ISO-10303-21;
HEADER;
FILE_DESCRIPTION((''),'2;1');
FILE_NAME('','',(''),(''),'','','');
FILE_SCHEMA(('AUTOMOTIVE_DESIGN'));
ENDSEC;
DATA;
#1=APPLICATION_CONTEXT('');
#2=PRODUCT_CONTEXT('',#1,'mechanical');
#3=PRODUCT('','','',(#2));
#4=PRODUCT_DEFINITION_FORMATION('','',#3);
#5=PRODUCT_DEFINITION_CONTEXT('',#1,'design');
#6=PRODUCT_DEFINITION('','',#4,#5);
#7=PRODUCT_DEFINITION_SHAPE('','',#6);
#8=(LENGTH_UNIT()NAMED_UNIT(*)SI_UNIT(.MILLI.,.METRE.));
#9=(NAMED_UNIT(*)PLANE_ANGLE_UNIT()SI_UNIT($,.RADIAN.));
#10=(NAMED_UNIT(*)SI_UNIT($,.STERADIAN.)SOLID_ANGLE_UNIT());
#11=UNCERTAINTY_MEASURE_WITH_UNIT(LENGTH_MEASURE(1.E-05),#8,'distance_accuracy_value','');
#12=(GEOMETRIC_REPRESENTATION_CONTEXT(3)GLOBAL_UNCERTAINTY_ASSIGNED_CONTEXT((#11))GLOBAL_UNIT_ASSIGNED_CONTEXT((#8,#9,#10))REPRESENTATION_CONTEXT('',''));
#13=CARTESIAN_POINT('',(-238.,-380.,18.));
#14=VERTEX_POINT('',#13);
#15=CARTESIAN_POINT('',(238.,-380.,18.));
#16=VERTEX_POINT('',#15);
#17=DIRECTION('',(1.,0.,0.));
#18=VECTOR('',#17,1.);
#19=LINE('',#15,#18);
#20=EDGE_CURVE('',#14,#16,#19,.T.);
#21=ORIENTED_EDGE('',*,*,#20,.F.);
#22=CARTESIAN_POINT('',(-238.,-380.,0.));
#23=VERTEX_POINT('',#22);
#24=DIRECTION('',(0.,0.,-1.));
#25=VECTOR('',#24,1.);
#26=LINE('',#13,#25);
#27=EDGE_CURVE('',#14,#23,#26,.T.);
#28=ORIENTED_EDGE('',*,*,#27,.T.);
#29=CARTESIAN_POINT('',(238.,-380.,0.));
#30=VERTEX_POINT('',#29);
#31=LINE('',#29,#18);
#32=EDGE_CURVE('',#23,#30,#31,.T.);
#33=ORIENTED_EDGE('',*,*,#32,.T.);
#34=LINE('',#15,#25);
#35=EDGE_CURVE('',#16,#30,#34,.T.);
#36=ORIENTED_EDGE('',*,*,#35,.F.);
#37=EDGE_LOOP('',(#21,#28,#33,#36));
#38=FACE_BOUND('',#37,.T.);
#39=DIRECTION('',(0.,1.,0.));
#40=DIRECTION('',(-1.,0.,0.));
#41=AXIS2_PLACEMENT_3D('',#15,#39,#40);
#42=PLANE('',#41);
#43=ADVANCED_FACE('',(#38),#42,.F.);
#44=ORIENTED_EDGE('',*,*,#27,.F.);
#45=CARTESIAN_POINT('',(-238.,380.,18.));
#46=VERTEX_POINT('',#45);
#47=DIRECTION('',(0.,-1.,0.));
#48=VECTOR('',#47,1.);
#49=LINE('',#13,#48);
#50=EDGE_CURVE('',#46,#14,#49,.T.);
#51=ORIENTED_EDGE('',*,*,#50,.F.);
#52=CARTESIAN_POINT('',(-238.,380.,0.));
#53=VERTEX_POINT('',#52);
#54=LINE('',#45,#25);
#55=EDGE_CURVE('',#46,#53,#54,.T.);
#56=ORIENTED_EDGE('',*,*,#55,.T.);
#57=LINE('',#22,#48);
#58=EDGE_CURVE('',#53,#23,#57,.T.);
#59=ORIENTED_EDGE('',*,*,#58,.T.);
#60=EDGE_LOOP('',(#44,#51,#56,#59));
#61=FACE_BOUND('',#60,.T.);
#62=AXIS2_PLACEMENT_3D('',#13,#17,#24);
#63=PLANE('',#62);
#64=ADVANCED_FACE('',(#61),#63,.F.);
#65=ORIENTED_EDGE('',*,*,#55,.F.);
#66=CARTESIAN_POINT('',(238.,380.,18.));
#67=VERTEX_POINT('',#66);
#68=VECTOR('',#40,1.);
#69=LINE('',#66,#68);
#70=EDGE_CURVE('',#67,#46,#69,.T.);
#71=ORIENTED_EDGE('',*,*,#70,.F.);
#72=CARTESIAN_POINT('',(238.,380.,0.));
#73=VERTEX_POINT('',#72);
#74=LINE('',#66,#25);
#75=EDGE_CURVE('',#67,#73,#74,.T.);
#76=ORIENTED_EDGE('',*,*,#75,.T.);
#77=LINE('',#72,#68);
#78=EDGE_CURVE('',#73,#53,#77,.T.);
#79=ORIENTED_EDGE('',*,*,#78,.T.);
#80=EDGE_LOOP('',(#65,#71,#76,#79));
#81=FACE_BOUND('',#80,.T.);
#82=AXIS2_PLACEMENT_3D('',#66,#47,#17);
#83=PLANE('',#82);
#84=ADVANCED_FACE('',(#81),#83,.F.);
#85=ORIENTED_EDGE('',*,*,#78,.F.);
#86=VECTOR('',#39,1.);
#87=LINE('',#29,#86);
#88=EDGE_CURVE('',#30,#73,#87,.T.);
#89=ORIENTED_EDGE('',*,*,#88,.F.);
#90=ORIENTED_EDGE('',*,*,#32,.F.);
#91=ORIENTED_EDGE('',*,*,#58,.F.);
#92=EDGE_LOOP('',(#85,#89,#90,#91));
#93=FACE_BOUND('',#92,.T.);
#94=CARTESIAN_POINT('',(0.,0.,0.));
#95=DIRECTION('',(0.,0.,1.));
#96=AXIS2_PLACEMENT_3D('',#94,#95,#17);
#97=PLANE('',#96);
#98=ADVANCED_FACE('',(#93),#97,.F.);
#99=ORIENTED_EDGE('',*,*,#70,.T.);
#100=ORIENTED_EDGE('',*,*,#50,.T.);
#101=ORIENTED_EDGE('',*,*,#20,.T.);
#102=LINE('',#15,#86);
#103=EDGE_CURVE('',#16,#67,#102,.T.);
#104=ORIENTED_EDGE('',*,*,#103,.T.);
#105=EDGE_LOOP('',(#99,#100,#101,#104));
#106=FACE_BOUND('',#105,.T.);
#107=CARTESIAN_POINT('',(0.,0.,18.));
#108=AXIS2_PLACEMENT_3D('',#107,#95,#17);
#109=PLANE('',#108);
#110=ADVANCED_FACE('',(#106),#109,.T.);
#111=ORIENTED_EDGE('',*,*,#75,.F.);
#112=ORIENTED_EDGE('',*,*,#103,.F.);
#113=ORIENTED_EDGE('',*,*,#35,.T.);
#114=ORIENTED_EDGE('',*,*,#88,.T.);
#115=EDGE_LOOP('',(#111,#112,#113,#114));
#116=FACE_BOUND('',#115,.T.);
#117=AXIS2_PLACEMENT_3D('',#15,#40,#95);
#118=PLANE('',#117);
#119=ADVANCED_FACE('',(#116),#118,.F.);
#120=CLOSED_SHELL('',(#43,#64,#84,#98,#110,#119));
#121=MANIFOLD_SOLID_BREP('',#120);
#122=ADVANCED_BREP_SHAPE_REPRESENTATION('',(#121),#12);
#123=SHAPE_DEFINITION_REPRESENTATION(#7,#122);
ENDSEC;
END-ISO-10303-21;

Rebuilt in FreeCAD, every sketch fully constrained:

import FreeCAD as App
import Part
import Sketcher

V = App.Vector
Q = App.Units.Quantity

doc = App.newDocument("Part")
body = doc.addObject("PartDesign::Body", "Body")

# Sketch on XY plane
sketch1 = body.newObject("Sketcher::SketchObject", "Sketch")
sketch1.AttachmentSupport = (doc.getObject("XY_Plane"), [""])
sketch1.MapMode = "FlatFace"
sketch1.addGeometry(Part.LineSegment(V(-238, 380, 0), V(-238, -380, 0)), False)
sketch1.addGeometry(Part.LineSegment(V(-238, -380, 0), V(238, -380, 0)), False)
sketch1.addGeometry(Part.LineSegment(V(238, -380, 0), V(238, 380, 0)), False)
sketch1.addGeometry(Part.LineSegment(V(238, 380, 0), V(-238, 380, 0)), False)
sketch1.addConstraint(Sketcher.Constraint("Coincident", 0, 2, 1, 1))
sketch1.addConstraint(Sketcher.Constraint("Coincident", 1, 2, 2, 1))
sketch1.addConstraint(Sketcher.Constraint("Coincident", 2, 2, 3, 1))
sketch1.addConstraint(Sketcher.Constraint("Coincident", 3, 2, 0, 1))
sketch1.addConstraint(Sketcher.Constraint("Vertical", 0))
sketch1.addConstraint(Sketcher.Constraint("Horizontal", 1))
sketch1.addConstraint(Sketcher.Constraint("Vertical", 2))
sketch1.addConstraint(Sketcher.Constraint("Horizontal", 3))
sketch1.addConstraint(Sketcher.Constraint("Symmetric", 0, 2, 2, 2, -1, 1))
sketch1.addConstraint(Sketcher.Constraint("DistanceX", 1, 1, 1, 2, Q("476 mm")))
sketch1.addConstraint(Sketcher.Constraint("DistanceY", 0, 2, 0, 1, Q("760 mm")))
pad1 = body.newObject("PartDesign::Pad", "Pad")
pad1.Profile = sketch1
pad1.Length = 18

doc.recompute()
